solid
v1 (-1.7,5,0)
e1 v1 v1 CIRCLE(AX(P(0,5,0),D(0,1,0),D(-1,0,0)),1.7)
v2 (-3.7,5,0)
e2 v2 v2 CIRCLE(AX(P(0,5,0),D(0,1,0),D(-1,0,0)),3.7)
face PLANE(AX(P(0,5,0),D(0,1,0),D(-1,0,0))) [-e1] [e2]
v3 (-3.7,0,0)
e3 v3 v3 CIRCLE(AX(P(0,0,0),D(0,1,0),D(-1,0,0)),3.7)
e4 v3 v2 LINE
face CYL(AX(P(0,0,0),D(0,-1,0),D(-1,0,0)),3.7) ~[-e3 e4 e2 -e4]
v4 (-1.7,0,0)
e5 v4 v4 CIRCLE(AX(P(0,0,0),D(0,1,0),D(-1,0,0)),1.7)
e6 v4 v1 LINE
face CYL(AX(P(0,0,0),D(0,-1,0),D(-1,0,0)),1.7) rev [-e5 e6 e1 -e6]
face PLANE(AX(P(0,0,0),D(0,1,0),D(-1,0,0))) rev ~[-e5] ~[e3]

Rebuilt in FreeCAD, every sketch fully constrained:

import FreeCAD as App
import Part
import Sketcher

V = App.Vector
Q = App.Units.Quantity

doc = App.newDocument("Part")
params = doc.addObject("Spreadsheet::Sheet", "Params")
for row, (alias, value) in enumerate([
    ("sketch1_diameter", "3.4 mm"),
    ("sketch1_diameter2", "7.4 mm"),
    ("pad1_length", "5 mm"),
], start=1):
    params.set(f"A{row}", alias)
    params.set(f"B{row}", "=" + value)
    params.setAlias(f"B{row}", alias)

body = doc.addObject("PartDesign::Body", "Body")

# Sketch on XZ plane
sketch1 = body.newObject("Sketcher::SketchObject", "Sketch")
sketch1.AttachmentSupport = (doc.getObject("XZ_Plane"), [""])
sketch1.MapMode = "FlatFace"
sketch1.addGeometry([
    Part.Circle(V(0, 0, 0), V(0, 0, 1), 3.7),
    Part.Circle(V(0, 0, 0), V(0, 0, 1), 1.7),
], False)
sketch1.addConstraint([
    Sketcher.Constraint("Coincident", 0, 3, -1, 1),
    Sketcher.Constraint("Coincident", 1, 3, -1, 1),
    Sketcher.Constraint("Diameter", 1, Q("3.4 mm")),
    Sketcher.Constraint("Diameter", 0, Q("7.4 mm")),
])
sketch1.setExpression("Constraints[2]", "Params.sketch1_diameter")
sketch1.setExpression("Constraints[3]", "Params.sketch1_diameter2")
pad1 = body.newObject("PartDesign::Pad", "Pad")
pad1.Profile = sketch1
pad1.setExpression("Length", "Params.pad1_length")
pad1.Reversed = True

doc.recompute()
